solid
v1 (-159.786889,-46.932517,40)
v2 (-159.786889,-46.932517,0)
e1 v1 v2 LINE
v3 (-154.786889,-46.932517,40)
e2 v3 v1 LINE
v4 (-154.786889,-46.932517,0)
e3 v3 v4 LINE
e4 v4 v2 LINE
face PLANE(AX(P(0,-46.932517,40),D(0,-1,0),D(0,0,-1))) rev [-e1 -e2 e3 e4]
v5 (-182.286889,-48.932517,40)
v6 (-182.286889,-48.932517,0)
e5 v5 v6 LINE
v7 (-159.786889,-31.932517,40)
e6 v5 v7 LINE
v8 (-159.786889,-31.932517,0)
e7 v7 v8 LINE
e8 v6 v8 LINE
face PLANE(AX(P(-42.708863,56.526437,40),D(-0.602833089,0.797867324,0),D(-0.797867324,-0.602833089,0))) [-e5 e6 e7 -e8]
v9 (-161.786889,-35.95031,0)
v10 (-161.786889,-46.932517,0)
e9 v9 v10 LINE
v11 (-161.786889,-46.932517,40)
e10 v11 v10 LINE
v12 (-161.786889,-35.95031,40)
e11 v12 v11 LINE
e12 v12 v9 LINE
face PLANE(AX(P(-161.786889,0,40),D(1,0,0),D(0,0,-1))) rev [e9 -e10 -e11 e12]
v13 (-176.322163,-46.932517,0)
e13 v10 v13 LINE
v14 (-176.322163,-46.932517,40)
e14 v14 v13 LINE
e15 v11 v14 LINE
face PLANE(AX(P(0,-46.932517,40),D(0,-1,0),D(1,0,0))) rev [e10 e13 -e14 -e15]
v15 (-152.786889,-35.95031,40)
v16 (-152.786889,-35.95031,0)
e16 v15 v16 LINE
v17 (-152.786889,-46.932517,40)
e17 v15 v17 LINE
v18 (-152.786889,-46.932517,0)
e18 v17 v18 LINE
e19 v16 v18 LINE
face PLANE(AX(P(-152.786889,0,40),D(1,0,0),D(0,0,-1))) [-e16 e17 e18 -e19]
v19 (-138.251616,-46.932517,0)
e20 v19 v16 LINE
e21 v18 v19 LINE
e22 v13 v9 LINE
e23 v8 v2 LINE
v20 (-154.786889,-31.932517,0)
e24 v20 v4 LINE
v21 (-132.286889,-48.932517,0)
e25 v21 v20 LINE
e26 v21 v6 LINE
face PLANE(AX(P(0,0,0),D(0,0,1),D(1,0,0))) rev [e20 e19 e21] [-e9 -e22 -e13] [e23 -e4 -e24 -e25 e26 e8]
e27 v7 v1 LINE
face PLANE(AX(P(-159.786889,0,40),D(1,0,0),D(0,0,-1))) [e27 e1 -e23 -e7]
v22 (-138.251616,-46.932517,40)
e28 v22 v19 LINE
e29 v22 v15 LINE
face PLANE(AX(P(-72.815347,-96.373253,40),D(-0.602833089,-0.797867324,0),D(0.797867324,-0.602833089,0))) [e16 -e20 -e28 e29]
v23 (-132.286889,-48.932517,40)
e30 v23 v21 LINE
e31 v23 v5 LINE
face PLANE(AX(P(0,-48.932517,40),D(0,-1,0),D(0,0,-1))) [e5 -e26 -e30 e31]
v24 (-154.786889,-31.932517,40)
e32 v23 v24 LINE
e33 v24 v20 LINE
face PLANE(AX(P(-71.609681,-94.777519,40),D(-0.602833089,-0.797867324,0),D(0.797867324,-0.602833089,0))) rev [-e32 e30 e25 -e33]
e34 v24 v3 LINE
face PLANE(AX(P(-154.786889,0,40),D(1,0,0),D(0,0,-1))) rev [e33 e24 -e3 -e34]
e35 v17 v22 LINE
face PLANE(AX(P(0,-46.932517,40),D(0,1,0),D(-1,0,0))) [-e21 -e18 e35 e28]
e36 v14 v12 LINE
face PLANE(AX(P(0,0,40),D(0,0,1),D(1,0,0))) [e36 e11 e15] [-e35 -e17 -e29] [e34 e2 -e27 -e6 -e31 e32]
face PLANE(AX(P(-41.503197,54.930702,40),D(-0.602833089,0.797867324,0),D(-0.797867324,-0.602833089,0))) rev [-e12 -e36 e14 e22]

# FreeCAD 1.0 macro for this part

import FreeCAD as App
import Part
import Sketcher
from FreeCAD import Vector
Q = App.Units.Quantity


def add_polygon(sketch, points):
    """Adds a closed chain of lines whose ends are joined by coincident constraints."""
    first, n = sketch.GeometryCount, len(points)
    for a, b in zip(points, points[1:] + points[:1]):
        sketch.addGeometry(Part.LineSegment(App.Vector(*a, 0), App.Vector(*b, 0)), False)
    for i in range(n):
        sketch.addConstraint(Sketcher.Constraint("Coincident", first + i, 2, first + (i + 1) % n, 1))

doc = App.newDocument("Part")
body = doc.addObject("PartDesign::Body", "Body")

# Sketch on XY plane
sketch1 = body.newObject("Sketcher::SketchObject", "Sketch")
sketch1.AttachmentSupport = (doc.getObject("XY_Plane"), [""])
sketch1.MapMode = "FlatFace"
add_polygon(sketch1, [(-132, -49), (-155, -32), (-155, -47), (-160, -47), (-160, -32), (-182, -49)])  # lines 0-5
add_polygon(sketch1, [(-162, -47), (-176, -47), (-162, -36)])  # lines 6-8
add_polygon(sketch1, [(-153, -36), (-138, -47), (-153, -47)])  # lines 9-11
sketch1.addConstraint(Sketcher.Constraint("Vertical", 1))
sketch1.addConstraint(Sketcher.Constraint("Horizontal", 2))
sketch1.addConstraint(Sketcher.Constraint("Vertical", 3))
sketch1.addConstraint(Sketcher.Constraint("Horizontal", 5))
sketch1.addConstraint(Sketcher.Constraint("Horizontal", 6))
sketch1.addConstraint(Sketcher.Constraint("Vertical", 8))
sketch1.addConstraint(Sketcher.Constraint("Horizontal", 10))
sketch1.addConstraint(Sketcher.Constraint("Vertical", 11))
sketch1.addConstraint(Sketcher.Constraint("Parallel", 4, 7))
sketch1.addConstraint(Sketcher.Constraint("Parallel", 0, 9))
sketch1.addConstraint(Sketcher.Constraint("Horizontal", 0, 2, 3, 2))
sketch1.addConstraint(Sketcher.Constraint("Horizontal", 2, 2, 6, 2))
sketch1.addConstraint(Sketcher.Constraint("Horizontal", 8, 2, 9, 2))
sketch1.addConstraint(Sketcher.Constraint("Horizontal", 7, 2, 11, 2))
sketch1.addConstraint(Sketcher.Constraint("Equal", 6, 10))
sketch1.addConstraint(Sketcher.Constraint("DistanceX", 2, 2, 2, 1, Q("5 mm")))
sketch1.addConstraint(Sketcher.Constraint("DistanceX", 5, 1, 5, 2, Q("50 mm")))
sketch1.addConstraint(Sketcher.Constraint("DistanceY", 1, 2, 1, 1, Q("15 mm")))
sketch1.addConstraint(Sketcher.Constraint("DistanceY", 4, 2, 2, 2, Q("2 mm")))
sketch1.addConstraint(Sketcher.Constraint("DistanceX", 7, 2, 3, 2, Q("2 mm")))
sketch1.addConstraint(Sketcher.Constraint("DistanceX", 1, 2, 10, 2, Q("2 mm")))
sketch1.addConstraint(Sketcher.Constraint("DistanceX", 6, 2, 6, 1, Q("14.535273 mm")))
sketch1.addConstraint(Sketcher.Constraint("DistanceX", 0, 2, -1, 1, Q("154.786889 mm")))
sketch1.addConstraint(Sketcher.Constraint("DistanceY", 7, 2, -1, 1, Q("35.95031 mm")))
pad1 = body.newObject("PartDesign::Pad", "Pad")
pad1.Profile = sketch1
pad1.Length = 40

doc.recompute()
